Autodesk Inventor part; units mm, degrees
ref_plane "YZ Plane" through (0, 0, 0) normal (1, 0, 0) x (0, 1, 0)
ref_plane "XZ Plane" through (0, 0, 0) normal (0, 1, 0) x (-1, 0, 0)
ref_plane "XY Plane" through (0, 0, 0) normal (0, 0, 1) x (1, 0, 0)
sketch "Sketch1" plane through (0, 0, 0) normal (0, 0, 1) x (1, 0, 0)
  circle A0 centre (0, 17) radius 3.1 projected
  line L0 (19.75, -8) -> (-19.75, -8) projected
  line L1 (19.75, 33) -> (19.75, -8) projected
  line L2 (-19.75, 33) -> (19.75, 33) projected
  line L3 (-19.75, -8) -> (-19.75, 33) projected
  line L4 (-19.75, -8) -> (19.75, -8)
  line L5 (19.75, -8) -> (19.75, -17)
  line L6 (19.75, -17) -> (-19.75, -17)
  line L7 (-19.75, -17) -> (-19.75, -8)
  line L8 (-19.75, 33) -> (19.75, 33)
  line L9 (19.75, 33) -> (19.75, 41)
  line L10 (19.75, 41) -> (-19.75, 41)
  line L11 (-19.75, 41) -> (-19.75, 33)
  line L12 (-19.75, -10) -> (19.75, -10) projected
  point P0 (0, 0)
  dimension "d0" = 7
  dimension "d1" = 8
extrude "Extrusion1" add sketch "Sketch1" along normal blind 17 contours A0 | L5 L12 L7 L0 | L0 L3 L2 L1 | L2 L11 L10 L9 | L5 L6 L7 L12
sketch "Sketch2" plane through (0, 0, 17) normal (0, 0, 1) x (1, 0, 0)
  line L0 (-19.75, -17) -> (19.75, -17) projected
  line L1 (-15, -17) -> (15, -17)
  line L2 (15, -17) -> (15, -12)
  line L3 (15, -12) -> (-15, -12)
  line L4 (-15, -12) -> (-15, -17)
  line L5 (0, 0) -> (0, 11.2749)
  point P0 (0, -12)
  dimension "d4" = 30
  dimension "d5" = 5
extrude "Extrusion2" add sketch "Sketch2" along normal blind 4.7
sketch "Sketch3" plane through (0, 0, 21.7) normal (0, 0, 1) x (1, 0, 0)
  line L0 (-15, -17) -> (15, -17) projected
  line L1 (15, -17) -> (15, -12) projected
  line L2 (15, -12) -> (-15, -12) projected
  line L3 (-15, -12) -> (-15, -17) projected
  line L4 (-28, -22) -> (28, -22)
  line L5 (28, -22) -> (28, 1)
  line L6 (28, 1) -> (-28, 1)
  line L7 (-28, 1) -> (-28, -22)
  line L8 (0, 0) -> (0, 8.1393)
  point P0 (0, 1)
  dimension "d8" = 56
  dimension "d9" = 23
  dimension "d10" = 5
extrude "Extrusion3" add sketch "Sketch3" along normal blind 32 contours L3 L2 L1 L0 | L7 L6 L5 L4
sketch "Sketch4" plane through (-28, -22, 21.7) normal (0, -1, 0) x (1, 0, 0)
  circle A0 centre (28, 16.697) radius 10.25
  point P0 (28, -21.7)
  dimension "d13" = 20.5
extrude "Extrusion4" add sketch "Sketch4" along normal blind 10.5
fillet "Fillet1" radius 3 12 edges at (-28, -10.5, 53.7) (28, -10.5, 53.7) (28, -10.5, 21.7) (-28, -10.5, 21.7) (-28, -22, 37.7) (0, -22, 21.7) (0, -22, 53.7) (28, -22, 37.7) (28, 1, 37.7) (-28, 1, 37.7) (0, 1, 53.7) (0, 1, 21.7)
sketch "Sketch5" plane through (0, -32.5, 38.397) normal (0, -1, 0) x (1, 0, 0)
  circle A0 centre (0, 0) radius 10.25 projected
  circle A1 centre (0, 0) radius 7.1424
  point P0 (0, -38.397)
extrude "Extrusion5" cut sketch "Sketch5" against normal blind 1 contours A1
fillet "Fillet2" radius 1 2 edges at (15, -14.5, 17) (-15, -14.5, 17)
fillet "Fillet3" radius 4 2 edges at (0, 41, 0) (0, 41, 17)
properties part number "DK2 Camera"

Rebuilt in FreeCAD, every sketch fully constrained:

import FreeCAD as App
import Part
import Sketcher
from FreeCAD import Vector


def edges_at(feature, points):
    """Names of the edges that pass closest to the given points."""
    edges = feature.Shape.Edges
    near = lambda p: min(range(len(edges)), key=lambda i: edges[i].distToShape(Part.Vertex(*p))[0])
    return sorted({f"Edge{near(p) + 1}" for p in points})


def add_polygon(sketch, points):
    """Adds a closed chain of lines whose ends are joined by coincident constraints."""
    first, n = sketch.GeometryCount, len(points)
    for a, b in zip(points, points[1:] + points[:1]):
        sketch.addGeometry(Part.LineSegment(App.Vector(*a, 0), App.Vector(*b, 0)), False)
    for i in range(n):
        sketch.addConstraint(Sketcher.Constraint("Coincident", first + i, 2, first + (i + 1) % n, 1))

doc = App.newDocument("Part")
body = doc.addObject("PartDesign::Body", "Body")

sketch1 = body.newObject("Sketcher::SketchObject", "Sketch")
sketch1.AttachmentSupport = (doc.getObject("XY_Plane"), [""])
sketch1.MapMode = "FlatFace"
add_polygon(sketch1, [(-20, -17), (20, -17), (20, 41), (-20, 41)])
sketch1.addConstraint([
    Sketcher.Constraint("Horizontal", 0),
    Sketcher.Constraint("Vertical", 1),
    Sketcher.Constraint("Horizontal", 2),
    Sketcher.Constraint("Vertical", 3),
    Sketcher.Constraint("DistanceY", 1, 1, 1, 2, 58.0),
    Sketcher.Constraint("DistanceX", 0, 1, 0, 2, 39.5),
    Sketcher.Constraint("DistanceY", 0, 2, -1, 1, 17.0),
    Sketcher.Constraint("DistanceX", -1, 1, 0, 2, 19.75),
])
pad1 = body.newObject("PartDesign::Pad", "Pad")
pad1.Profile = sketch1
pad1.Length = 17

sketch2 = body.newObject("Sketcher::SketchObject", "Sketch001")
sketch2.AttachmentSupport = (doc.getObject("XY_Plane"), [""])
sketch2.MapMode = "FlatFace"
sketch2.AttachmentOffset = App.Placement(Vector(0, 0, 17), App.Rotation())
add_polygon(sketch2, [(-15, -12), (-15, -17), (15, -17), (15, -12)])
sketch2.addConstraint([
    Sketcher.Constraint("Vertical", 0),
    Sketcher.Constraint("Horizontal", 1),
    Sketcher.Constraint("Vertical", 2),
    Sketcher.Constraint("Horizontal", 3),
    Sketcher.Constraint("DistanceX", 1, 1, 1, 2, 30.0),
    Sketcher.Constraint("DistanceY", 0, 2, 0, 1, 5.0),
    Sketcher.Constraint("DistanceX", 0, 2, -1, 1, 15.0),
    Sketcher.Constraint("DistanceY", 0, 2, -1, 1, 17.0),
])
pad2 = body.newObject("PartDesign::Pad", "Pad001")
pad2.Profile = sketch2
pad2.Length = 4.7

sketch3 = body.newObject("Sketcher::SketchObject", "Sketch002")
sketch3.AttachmentSupport = (doc.getObject("XY_Plane"), [""])
sketch3.MapMode = "FlatFace"
sketch3.AttachmentOffset = App.Placement(Vector(0, 0, 21.7), App.Rotation())
add_polygon(sketch3, [(-28, 1), (-28, -22), (28, -22), (28, 1)])
sketch3.addConstraint([
    Sketcher.Constraint("Vertical", 0),
    Sketcher.Constraint("Horizontal", 1),
    Sketcher.Constraint("Vertical", 2),
    Sketcher.Constraint("Horizontal", 3),
    Sketcher.Constraint("DistanceX", 1, 1, 1, 2, 56.0),
    Sketcher.Constraint("DistanceY", 0, 2, 0, 1, 23.0),
    Sketcher.Constraint("DistanceX", 0, 2, -1, 1, 28.0),
    Sketcher.Constraint("DistanceY", 0, 2, -1, 1, 22.0),
])
pad3 = body.newObject("PartDesign::Pad", "Pad002")
pad3.Profile = sketch3
pad3.Length = 32

sketch4 = body.newObject("Sketcher::SketchObject", "Sketch003")
sketch4.AttachmentSupport = (doc.getObject("XZ_Plane"), [""])
sketch4.MapMode = "FlatFace"
sketch4.AttachmentOffset = App.Placement(Vector(0, 0, 22), App.Rotation())
sketch4.addGeometry(Part.Circle(Vector(0, 38, 0), Vector(0, 0, 1), 10), False)
sketch4.addConstraint([
    Sketcher.Constraint("PointOnObject", 0, 3, -2),
    Sketcher.Constraint("Diameter", 0, 20.5),
    Sketcher.Constraint("DistanceY", -1, 1, 0, 3, 38.397),
])
pad4 = body.newObject("PartDesign::Pad", "Pad003")
pad4.Profile = sketch4
pad4.Length = 10.5
doc.recompute()

fillet = body.newObject("PartDesign::Fillet", "Fillet")
fillet.Base = (pad4, edges_at(pad4, [
    (-28, -10.5, 53.7),
    (28, -10.5, 53.7),
    (28, -10.5, 21.7),
    (-28, -10.5, 21.7),
    (-28, -22, 37.7),
    (0, -22, 21.7),
    (0, -22, 53.7),
    (28, -22, 37.7),
    (28, 1, 37.7),
    (-28, 1, 37.7),
    (0, 1, 53.7),
    (0, 1, 21.7),
]))
fillet.Radius = 3

sketch5 = body.newObject("Sketcher::SketchObject", "Sketch004")
sketch5.AttachmentSupport = (doc.getObject("XZ_Plane"), [""])
sketch5.MapMode = "FlatFace"
sketch5.AttachmentOffset = App.Placement(Vector(0, 0, 32.5), App.Rotation())
sketch5.addGeometry(Part.Circle(Vector(0, 38, 0), Vector(0, 0, 1), 7), False)
sketch5.addConstraint([
    Sketcher.Constraint("PointOnObject", 0, 3, -2),
    Sketcher.Constraint("Diameter", 0, 14.2848),
    Sketcher.Constraint("DistanceY", -1, 1, 0, 3, 38.397),
])
pocket1 = body.newObject("PartDesign::Pocket", "Pocket")
pocket1.Profile = sketch5
pocket1.Length = 1
doc.recompute()

fillet2 = body.newObject("PartDesign::Fillet", "Fillet001")
fillet2.Base = (pocket1, edges_at(pocket1, [(15, -14.5, 17), (-15, -14.5, 17)]))
fillet2.Radius = 1
doc.recompute()

fillet3 = body.newObject("PartDesign::Fillet", "Fillet002")
fillet3.Base = (fillet2, edges_at(fillet2, [(0, 41, 0), (0, 41, 17)]))
fillet3.Radius = 4

doc.recompute()
